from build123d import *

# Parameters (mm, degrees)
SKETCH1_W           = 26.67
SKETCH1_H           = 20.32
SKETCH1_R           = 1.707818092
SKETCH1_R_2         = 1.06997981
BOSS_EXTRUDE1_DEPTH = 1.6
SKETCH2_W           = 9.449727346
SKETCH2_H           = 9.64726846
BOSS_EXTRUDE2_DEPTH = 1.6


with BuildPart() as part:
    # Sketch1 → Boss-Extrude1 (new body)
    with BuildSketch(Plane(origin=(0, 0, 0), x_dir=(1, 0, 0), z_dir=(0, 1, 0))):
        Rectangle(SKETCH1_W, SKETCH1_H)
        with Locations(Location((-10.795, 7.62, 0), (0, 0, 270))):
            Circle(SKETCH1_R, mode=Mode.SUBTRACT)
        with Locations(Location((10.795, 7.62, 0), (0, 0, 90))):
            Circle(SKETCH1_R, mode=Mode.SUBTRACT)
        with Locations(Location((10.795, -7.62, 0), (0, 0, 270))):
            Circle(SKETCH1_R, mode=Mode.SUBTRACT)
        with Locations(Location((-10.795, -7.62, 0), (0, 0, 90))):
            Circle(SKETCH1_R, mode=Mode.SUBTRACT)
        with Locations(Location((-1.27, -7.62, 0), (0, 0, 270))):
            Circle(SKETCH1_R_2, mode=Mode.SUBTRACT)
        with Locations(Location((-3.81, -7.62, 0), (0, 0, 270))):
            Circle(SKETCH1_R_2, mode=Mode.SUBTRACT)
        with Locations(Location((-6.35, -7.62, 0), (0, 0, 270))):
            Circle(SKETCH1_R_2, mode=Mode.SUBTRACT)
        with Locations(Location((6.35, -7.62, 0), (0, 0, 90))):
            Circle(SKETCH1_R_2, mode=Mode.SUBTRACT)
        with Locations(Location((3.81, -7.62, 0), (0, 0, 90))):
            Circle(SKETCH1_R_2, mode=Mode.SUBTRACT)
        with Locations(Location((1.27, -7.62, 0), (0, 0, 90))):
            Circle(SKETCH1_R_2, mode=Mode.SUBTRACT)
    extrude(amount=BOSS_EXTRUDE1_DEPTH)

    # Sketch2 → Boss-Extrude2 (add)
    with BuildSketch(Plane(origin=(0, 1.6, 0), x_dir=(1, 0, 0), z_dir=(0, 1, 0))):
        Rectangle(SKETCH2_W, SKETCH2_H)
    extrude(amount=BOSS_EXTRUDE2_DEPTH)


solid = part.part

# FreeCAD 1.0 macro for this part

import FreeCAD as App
import Part
import Sketcher
from FreeCAD import Vector
Q = App.Units.Quantity


def add_polygon(sketch, points):
    """Adds a closed chain of lines whose ends are joined by coincident constraints."""
    first, n = sketch.GeometryCount, len(points)
    for a, b in zip(points, points[1:] + points[:1]):
        sketch.addGeometry(Part.LineSegment(App.Vector(*a, 0), App.Vector(*b, 0)), False)
    for i in range(n):
        sketch.addConstraint(Sketcher.Constraint("Coincident", first + i, 2, first + (i + 1) % n, 1))

doc = App.newDocument("Part")
body = doc.addObject("PartDesign::Body", "Body")

# Sketch on XZ plane
sketch1 = body.newObject("Sketcher::SketchObject", "Sketch")
sketch1.AttachmentSupport = (doc.getObject("XZ_Plane"), [""])
sketch1.MapMode = "FlatFace"
add_polygon(sketch1, [(-13.335, -10.16), (-13.335, 10.16), (13.335, 10.16), (13.335, -10.16)])  # lines 0-3
sketch1.addGeometry(Part.Circle(Vector(-10.795, 7.62, 0), Vector(0, 0, 1), 1.707818), False)  # 4
sketch1.addGeometry(Part.Circle(Vector(-6.35, 7.62, 0), Vector(0, 0, 1), 1.06998), False)  # 5
sketch1.addGeometry(Part.Circle(Vector(-3.81, 7.62, 0), Vector(0, 0, 1), 1.06998), False)  # 6
sketch1.addGeometry(Part.Circle(Vector(-1.27, 7.62, 0), Vector(0, 0, 1), 1.06998), False)  # 7
sketch1.addGeometry(Part.Circle(Vector(1.27, 7.62, 0), Vector(0, 0, 1), 1.06998), False)  # 8
sketch1.addGeometry(Part.Circle(Vector(3.81, 7.62, 0), Vector(0, 0, 1), 1.06998), False)  # 9
sketch1.addGeometry(Part.Circle(Vector(6.35, 7.62, 0), Vector(0, 0, 1), 1.06998), False)  # 10
sketch1.addGeometry(Part.Circle(Vector(10.795, 7.62, 0), Vector(0, 0, 1), 1.707818), False)  # 11
sketch1.addGeometry(Part.Circle(Vector(-10.795, -7.62, 0), Vector(0, 0, 1), 1.707818), False)  # 12
sketch1.addGeometry(Part.Circle(Vector(10.795, -7.62, 0), Vector(0, 0, 1), 1.707818), False)  # 13
sketch1.addConstraint([
    Sketcher.Constraint("Vertical", 0),
    Sketcher.Constraint("Horizontal", 1),
    Sketcher.Constraint("Vertical", 2),
    Sketcher.Constraint("Horizontal", 3),
    Sketcher.Constraint("Equal", 5, 6),
    Sketcher.Constraint("Equal", 6, 7),
    Sketcher.Constraint("Equal", 7, 8),
    Sketcher.Constraint("Equal", 8, 9),
    Sketcher.Constraint("Equal", 9, 10),
    Sketcher.Constraint("Equal", 4, 11),
    Sketcher.Constraint("Equal", 11, 12),
    Sketcher.Constraint("Equal", 12, 13),
    Sketcher.Constraint("Symmetric", 11, 3, 12, 3, -1, 1),
    Sketcher.Constraint("Symmetric", 4, 3, 13, 3, -1, 1),
    Sketcher.Constraint("Symmetric", 0, 2, 2, 2, -1, 1),
    Sketcher.Constraint("Symmetric", 7, 3, 8, 3, -2),
    Sketcher.Constraint("Symmetric", 6, 3, 9, 3, -2),
    Sketcher.Constraint("Symmetric", 5, 3, 10, 3, -2),
    Sketcher.Constraint("Symmetric", 4, 3, 11, 3, -2),
    Sketcher.Constraint("Horizontal", 4, 3, 5, 3),
    Sketcher.Constraint("Horizontal", 5, 3, 6, 3),
    Sketcher.Constraint("Horizontal", 6, 3, 7, 3),
    Sketcher.Constraint("DistanceY", 0, 1, 0, 2, Q("0.8 in")),
    Sketcher.Constraint("DistanceX", 1, 1, 1, 2, Q("1.05 in")),
    Sketcher.Constraint("DistanceY", -1, 1, 4, 3, Q("0.3 in")),
    Sketcher.Constraint("DistanceX", 5, 3, 6, 3, Q("0.1 in")),
    Sketcher.Constraint("DistanceX", 6, 3, 7, 3, Q("0.1 in")),
    Sketcher.Constraint("DistanceX", 7, 3, 8, 3, Q("0.1 in")),
    Sketcher.Constraint("DistanceX", 0, 2, 4, 3, Q("0.1 in")),
    Sketcher.Constraint("Diameter", 5, 2.13996),
    Sketcher.Constraint("Diameter", 4, 3.415636),
])
pad1 = body.newObject("PartDesign::Pad", "Pad")
pad1.Profile = sketch1
pad1.Length = 1.6
pad1.Reversed = True

# Sketch on XZ plane
sketch2 = body.newObject("Sketcher::SketchObject", "Sketch001")
sketch2.AttachmentSupport = (doc.getObject("XZ_Plane"), [""])
sketch2.MapMode = "FlatFace"
sketch2.AttachmentOffset = App.Placement(Vector(0, 0, -1.6), App.Rotation())
add_polygon(sketch2, [(-4.724864, -4.823634), (-4.724864, 4.823634), (4.724864, 4.823634), (4.724864, -4.823634)])  # lines 0-3
sketch2.addConstraint([
    Sketcher.Constraint("Vertical", 0),
    Sketcher.Constraint("Horizontal", 1),
    Sketcher.Constraint("Vertical", 2),
    Sketcher.Constraint("Horizontal", 3),
    Sketcher.Constraint("Symmetric", 0, 2, 2, 2, -1, 1),
    Sketcher.Constraint("DistanceY", 0, 1, 0, 2, 9.647268),
    Sketcher.Constraint("DistanceX", 1, 1, 1, 2, 9.449727),
])
pad2 = body.newObject("PartDesign::Pad", "Pad001")
pad2.Profile = sketch2
pad2.Length = 1.6
pad2.Reversed = True

doc.recompute()
